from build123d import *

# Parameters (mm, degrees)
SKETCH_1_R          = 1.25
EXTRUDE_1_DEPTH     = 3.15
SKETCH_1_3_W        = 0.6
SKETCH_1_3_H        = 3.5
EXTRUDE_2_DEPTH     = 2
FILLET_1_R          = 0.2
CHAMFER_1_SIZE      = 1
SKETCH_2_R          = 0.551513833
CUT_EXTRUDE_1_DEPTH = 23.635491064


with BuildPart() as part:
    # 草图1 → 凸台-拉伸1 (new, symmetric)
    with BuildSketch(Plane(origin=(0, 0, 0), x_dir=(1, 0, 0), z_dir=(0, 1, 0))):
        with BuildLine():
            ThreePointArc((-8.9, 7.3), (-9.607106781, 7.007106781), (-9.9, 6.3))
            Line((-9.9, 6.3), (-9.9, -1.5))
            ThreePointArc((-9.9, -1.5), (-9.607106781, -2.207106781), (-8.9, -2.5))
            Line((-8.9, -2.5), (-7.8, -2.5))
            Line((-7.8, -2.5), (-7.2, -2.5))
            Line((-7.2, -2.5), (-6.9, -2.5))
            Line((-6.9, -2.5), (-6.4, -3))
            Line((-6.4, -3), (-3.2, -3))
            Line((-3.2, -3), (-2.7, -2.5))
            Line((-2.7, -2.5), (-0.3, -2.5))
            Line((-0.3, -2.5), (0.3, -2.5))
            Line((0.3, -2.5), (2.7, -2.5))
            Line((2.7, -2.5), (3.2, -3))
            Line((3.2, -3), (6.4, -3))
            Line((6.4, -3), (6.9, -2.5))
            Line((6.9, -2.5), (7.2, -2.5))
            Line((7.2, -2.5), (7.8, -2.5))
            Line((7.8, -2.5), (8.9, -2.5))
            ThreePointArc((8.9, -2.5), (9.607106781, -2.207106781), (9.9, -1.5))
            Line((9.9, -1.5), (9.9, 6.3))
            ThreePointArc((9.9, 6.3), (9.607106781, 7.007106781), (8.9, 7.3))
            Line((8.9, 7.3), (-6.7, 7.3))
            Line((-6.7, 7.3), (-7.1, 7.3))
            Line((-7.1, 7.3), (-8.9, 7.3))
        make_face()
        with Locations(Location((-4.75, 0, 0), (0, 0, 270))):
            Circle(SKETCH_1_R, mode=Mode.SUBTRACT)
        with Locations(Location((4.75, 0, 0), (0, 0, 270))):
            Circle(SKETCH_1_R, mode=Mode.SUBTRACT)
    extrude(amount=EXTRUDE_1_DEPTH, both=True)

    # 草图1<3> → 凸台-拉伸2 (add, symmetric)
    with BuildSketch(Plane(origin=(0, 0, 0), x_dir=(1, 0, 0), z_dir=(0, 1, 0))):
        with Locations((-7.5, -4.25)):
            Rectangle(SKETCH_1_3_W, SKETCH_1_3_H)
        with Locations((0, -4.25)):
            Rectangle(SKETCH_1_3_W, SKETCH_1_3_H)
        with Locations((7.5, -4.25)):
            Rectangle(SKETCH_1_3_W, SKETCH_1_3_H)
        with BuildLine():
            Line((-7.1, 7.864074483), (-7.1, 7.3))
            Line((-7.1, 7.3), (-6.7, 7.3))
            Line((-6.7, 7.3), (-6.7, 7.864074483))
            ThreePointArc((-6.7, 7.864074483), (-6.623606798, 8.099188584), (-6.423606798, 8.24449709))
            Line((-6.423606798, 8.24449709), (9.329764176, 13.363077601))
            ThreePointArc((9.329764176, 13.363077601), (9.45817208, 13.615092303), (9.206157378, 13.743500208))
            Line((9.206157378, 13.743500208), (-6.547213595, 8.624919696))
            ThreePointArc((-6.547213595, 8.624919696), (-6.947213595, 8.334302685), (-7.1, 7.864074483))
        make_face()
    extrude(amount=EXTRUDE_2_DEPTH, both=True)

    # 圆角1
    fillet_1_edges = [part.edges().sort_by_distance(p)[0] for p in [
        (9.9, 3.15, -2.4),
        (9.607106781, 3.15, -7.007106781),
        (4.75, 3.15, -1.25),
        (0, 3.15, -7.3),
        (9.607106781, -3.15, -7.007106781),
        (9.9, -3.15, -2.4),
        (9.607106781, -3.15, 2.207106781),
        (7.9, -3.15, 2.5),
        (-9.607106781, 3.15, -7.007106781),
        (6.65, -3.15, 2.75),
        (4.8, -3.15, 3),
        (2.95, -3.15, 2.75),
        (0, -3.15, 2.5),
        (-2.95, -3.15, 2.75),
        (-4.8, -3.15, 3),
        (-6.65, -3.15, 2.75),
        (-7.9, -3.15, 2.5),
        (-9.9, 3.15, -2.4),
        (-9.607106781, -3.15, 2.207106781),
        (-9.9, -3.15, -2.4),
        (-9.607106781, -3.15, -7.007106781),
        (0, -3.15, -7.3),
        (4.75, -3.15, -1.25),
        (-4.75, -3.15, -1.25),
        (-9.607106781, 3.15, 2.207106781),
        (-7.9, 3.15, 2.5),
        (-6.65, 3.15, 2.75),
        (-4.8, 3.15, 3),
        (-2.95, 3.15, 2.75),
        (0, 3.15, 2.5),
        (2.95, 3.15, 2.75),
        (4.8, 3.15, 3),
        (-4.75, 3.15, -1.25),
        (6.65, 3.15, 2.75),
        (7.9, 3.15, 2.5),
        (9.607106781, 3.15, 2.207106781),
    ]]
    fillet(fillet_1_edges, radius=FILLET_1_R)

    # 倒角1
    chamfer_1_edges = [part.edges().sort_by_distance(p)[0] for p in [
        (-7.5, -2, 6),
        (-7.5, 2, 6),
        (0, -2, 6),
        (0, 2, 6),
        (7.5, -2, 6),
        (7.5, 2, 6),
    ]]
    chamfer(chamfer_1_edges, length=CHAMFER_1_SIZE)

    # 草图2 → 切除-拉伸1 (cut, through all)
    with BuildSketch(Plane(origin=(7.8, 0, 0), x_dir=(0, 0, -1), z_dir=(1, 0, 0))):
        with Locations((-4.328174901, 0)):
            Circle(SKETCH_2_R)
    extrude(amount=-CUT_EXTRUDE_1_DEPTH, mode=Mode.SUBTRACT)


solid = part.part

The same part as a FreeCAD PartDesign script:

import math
import FreeCAD as App
import Part
import Sketcher
from FreeCAD import Vector
Q = App.Units.Quantity


def edges_at(feature, points):
    """Names of the edges that pass closest to the given points."""
    edges = feature.Shape.Edges
    near = lambda p: min(range(len(edges)), key=lambda i: edges[i].distToShape(Part.Vertex(*p))[0])
    return sorted({f"Edge{near(p) + 1}" for p in points})


def add_polygon(sketch, points):
    """Adds a closed chain of lines whose ends are joined by coincident constraints."""
    first, n = sketch.GeometryCount, len(points)
    for a, b in zip(points, points[1:] + points[:1]):
        sketch.addGeometry(Part.LineSegment(App.Vector(*a, 0), App.Vector(*b, 0)), False)
    for i in range(n):
        sketch.addConstraint(Sketcher.Constraint("Coincident", first + i, 2, first + (i + 1) % n, 1))

doc = App.newDocument("Part")
body = doc.addObject("PartDesign::Body", "Body")

# Sketch on XZ plane
sketch1 = body.newObject("Sketcher::SketchObject", "Sketch")
sketch1.AttachmentSupport = (doc.getObject("XZ_Plane"), [""])
sketch1.MapMode = "FlatFace"
sketch1.addGeometry(Part.ArcOfCircle(Part.Circle(Vector(-8.9, -6.3, 0), Vector(0, 0, 1), 1), math.radians(-180), math.radians(-90)), False)
sketch1.addGeometry(Part.LineSegment(Vector(-9.9, -6.3, 0), Vector(-9.9, 1.5, 0)), False)
sketch1.addGeometry(Part.ArcOfCircle(Part.Circle(Vector(-8.9, 1.5, 0), Vector(0, 0, 1), 1), math.radians(90), math.radians(180)), False)
sketch1.addGeometry(Part.LineSegment(Vector(-8.9, 2.5, 0), Vector(-6.9, 2.5, 0)), False)
sketch1.addGeometry(Part.LineSegment(Vector(-6.9, 2.5, 0), Vector(-6.4, 3, 0)), False)
sketch1.addGeometry(Part.LineSegment(Vector(-6.4, 3, 0), Vector(-3.2, 3, 0)), False)
sketch1.addGeometry(Part.LineSegment(Vector(-3.2, 3, 0), Vector(-2.7, 2.5, 0)), False)
sketch1.addGeometry(Part.LineSegment(Vector(-2.7, 2.5, 0), Vector(2.7, 2.5, 0)), False)
sketch1.addGeometry(Part.LineSegment(Vector(2.7, 2.5, 0), Vector(3.2, 3, 0)), False)
sketch1.addGeometry(Part.LineSegment(Vector(3.2, 3, 0), Vector(6.4, 3, 0)), False)
sketch1.addGeometry(Part.LineSegment(Vector(6.4, 3, 0), Vector(6.9, 2.5, 0)), False)
sketch1.addGeometry(Part.LineSegment(Vector(6.9, 2.5, 0), Vector(8.9, 2.5, 0)), False)
sketch1.addGeometry(Part.ArcOfCircle(Part.Circle(Vector(8.9, 1.5, 0), Vector(0, 0, 1), 1), math.radians(0), math.radians(90)), False)
sketch1.addGeometry(Part.LineSegment(Vector(9.9, 1.5, 0), Vector(9.9, -6.3, 0)), False)
sketch1.addGeometry(Part.ArcOfCircle(Part.Circle(Vector(8.9, -6.3, 0), Vector(0, 0, 1), 1), math.radians(-90), math.radians(0)), False)
sketch1.addGeometry(Part.LineSegment(Vector(8.9, -7.3, 0), Vector(-8.9, -7.3, 0)), False)
sketch1.addGeometry(Part.Circle(Vector(-4.75, 0, 0), Vector(0, 0, 1), 1.25), False)
sketch1.addGeometry(Part.Circle(Vector(4.75, 0, 0), Vector(0, 0, 1), 1.25), False)
sketch1.addConstraint(Sketcher.Constraint("Tangent", 0, 1, 1, 1))
sketch1.addConstraint(Sketcher.Constraint("Tangent", 1, 2, 2, 2))
sketch1.addConstraint(Sketcher.Constraint("Tangent", 2, 1, 3, 1))
sketch1.addConstraint(Sketcher.Constraint("Coincident", 3, 2, 4, 1))
sketch1.addConstraint(Sketcher.Constraint("Coincident", 4, 2, 5, 1))
sketch1.addConstraint(Sketcher.Constraint("Coincident", 5, 2, 6, 1))
sketch1.addConstraint(Sketcher.Constraint("Coincident", 6, 2, 7, 1))
sketch1.addConstraint(Sketcher.Constraint("Coincident", 7, 2, 8, 1))
sketch1.addConstraint(Sketcher.Constraint("Coincident", 8, 2, 9, 1))
sketch1.addConstraint(Sketcher.Constraint("Coincident", 9, 2, 10, 1))
sketch1.addConstraint(Sketcher.Constraint("Coincident", 10, 2, 11, 1))
sketch1.addConstraint(Sketcher.Constraint("Tangent", 11, 2, 12, 2))
sketch1.addConstraint(Sketcher.Constraint("Tangent", 12, 1, 13, 1))
sketch1.addConstraint(Sketcher.Constraint("Tangent", 13, 2, 14, 2))
sketch1.addConstraint(Sketcher.Constraint("Tangent", 14, 1, 15, 1))
sketch1.addConstraint(Sketcher.Constraint("Tangent", 15, 2, 0, 2))
sketch1.addConstraint(Sketcher.Constraint("Vertical", 1))
sketch1.addConstraint(Sketcher.Constraint("Horizontal", 3))
sketch1.addConstraint(Sketcher.Constraint("Horizontal", 5))
sketch1.addConstraint(Sketcher.Constraint("Horizontal", 7))
sketch1.addConstraint(Sketcher.Constraint("Horizontal", 9))
sketch1.addConstraint(Sketcher.Constraint("Horizontal", 11))
sketch1.addConstraint(Sketcher.Constraint("Vertical", 13))
sketch1.addConstraint(Sketcher.Constraint("Horizontal", 15))
sketch1.addConstraint(Sketcher.Constraint("Equal", 0, 2))
sketch1.addConstraint(Sketcher.Constraint("Equal", 2, 12))
sketch1.addConstraint(Sketcher.Constraint("Equal", 12, 14))
sketch1.addConstraint(Sketcher.Constraint("Equal", 16, 17))
sketch1.addConstraint(Sketcher.Constraint("Symmetric", 16, 3, 17, 3, -1, 1))
sketch1.addConstraint(Sketcher.Constraint("Symmetric", 2, 3, 12, 3, -2))
sketch1.addConstraint(Sketcher.Constraint("Symmetric", 5, 2, 8, 2, -2))
sketch1.addConstraint(Sketcher.Constraint("PointOnObject", 16, 3, -1))
sketch1.addConstraint(Sketcher.Constraint("Perpendicular", 4, 6))
sketch1.addConstraint(Sketcher.Constraint("Perpendicular", 6, 8))
sketch1.addConstraint(Sketcher.Constraint("Perpendicular", 8, 10))
sketch1.addConstraint(Sketcher.Constraint("Horizontal", 3, 2, 6, 2))
sketch1.addConstraint(Sketcher.Constraint("Equal", 5, 9))
sketch1.addConstraint(Sketcher.Constraint("Equal", 3, 11))
sketch1.addConstraint(Sketcher.Constraint("Radius", 0, 1.0))
sketch1.addConstraint(Sketcher.Constraint("Diameter", 16, 2.5))
sketch1.addConstraint(Sketcher.Constraint("DistanceX", 3, 1, 3, 2, 2.0))
sketch1.addConstraint(Sketcher.Constraint("DistanceX", 5, 1, 5, 2, 3.2))
sketch1.addConstraint(Sketcher.Constraint("DistanceX", 7, 1, 7, 2, 5.4))
sketch1.addConstraint(Sketcher.Constraint("DistanceX", 15, 2, 15, 1, 17.8))
sketch1.addConstraint(Sketcher.Constraint("DistanceY", 1, 1, 1, 2, 7.8))
sketch1.addConstraint(Sketcher.Constraint("DistanceY", -1, 1, 4, 2, 3.0))
sketch1.addConstraint(Sketcher.Constraint("DistanceX", 16, 3, 17, 3, 9.5))
pad1 = body.newObject("PartDesign::Pad", "Pad")
pad1.Profile = sketch1
pad1.Length = 6.3
pad1.Midplane = True

# Sketch on XZ plane
sketch2 = body.newObject("Sketcher::SketchObject", "Sketch001")
sketch2.AttachmentSupport = (doc.getObject("XZ_Plane"), [""])
sketch2.MapMode = "FlatFace"
add_polygon(sketch2, [(-7.8, 2.5), (-7.8, 6), (-7.2, 6), (-7.2, 2.5)])  # lines 0-3
add_polygon(sketch2, [(-0.3, 2.5), (-0.3, 6), (0.3, 6), (0.3, 2.5)])  # lines 4-7
add_polygon(sketch2, [(7.2, 2.5), (7.2, 6), (7.8, 6), (7.8, 2.5)])  # lines 8-11
sketch2.addGeometry(Part.LineSegment(Vector(-7.1, -7.864074, 0), Vector(-7.1, -7.3, 0)), False)  # 12
sketch2.addGeometry(Part.LineSegment(Vector(-7.1, -7.3, 0), Vector(-6.7, -7.3, 0)), False)  # 13
sketch2.addGeometry(Part.LineSegment(Vector(-6.7, -7.3, 0), Vector(-6.7, -7.864074, 0)), False)  # 14
sketch2.addGeometry(Part.ArcOfCircle(Part.Circle(Vector(-6.3, -7.864074, 0), Vector(0, 0, 1), 0.4), math.radians(180), math.radians(252)), False)  # 15
sketch2.addGeometry(Part.LineSegment(Vector(-6.423607, -8.244497, 0), Vector(9.329764, -13.363078, 0)), False)  # 16
sketch2.addGeometry(Part.ArcOfCircle(Part.Circle(Vector(9.267961, -13.553289, 0), Vector(0, 0, 1), 0.2), math.radians(-108), math.radians(72)), False)  # 17
sketch2.addGeometry(Part.LineSegment(Vector(9.206157, -13.7435, 0), Vector(-6.547214, -8.62492, 0)), False)  # 18
sketch2.addGeometry(Part.ArcOfCircle(Part.Circle(Vector(-6.3, -7.864074, 0), Vector(0, 0, 1), 0.8), math.radians(-180), math.radians(-108)), False)  # 19
sketch2.addConstraint(Sketcher.Constraint("Coincident", 12, 2, 13, 1))
sketch2.addConstraint(Sketcher.Constraint("Coincident", 13, 2, 14, 1))
sketch2.addConstraint(Sketcher.Constraint("Tangent", 14, 2, 15, 1))
sketch2.addConstraint(Sketcher.Constraint("Tangent", 15, 2, 16, 1))
sketch2.addConstraint(Sketcher.Constraint("Tangent", 16, 2, 17, 2))
sketch2.addConstraint(Sketcher.Constraint("Tangent", 17, 1, 18, 1))
sketch2.addConstraint(Sketcher.Constraint("Tangent", 18, 2, 19, 2))
sketch2.addConstraint(Sketcher.Constraint("Tangent", 19, 1, 12, 1))
sketch2.addConstraint(Sketcher.Constraint("Vertical", 0))
sketch2.addConstraint(Sketcher.Constraint("Horizontal", 1))
sketch2.addConstraint(Sketcher.Constraint("Vertical", 2))
sketch2.addConstraint(Sketcher.Constraint("Horizontal", 3))
sketch2.addConstraint(Sketcher.Constraint("Vertical", 4))
sketch2.addConstraint(Sketcher.Constraint("Horizontal", 5))
sketch2.addConstraint(Sketcher.Constraint("Vertical", 6))
sketch2.addConstraint(Sketcher.Constraint("Horizontal", 7))
sketch2.addConstraint(Sketcher.Constraint("Vertical", 8))
sketch2.addConstraint(Sketcher.Constraint("Horizontal", 9))
sketch2.addConstraint(Sketcher.Constraint("Vertical", 10))
sketch2.addConstraint(Sketcher.Constraint("Horizontal", 11))
sketch2.addConstraint(Sketcher.Constraint("Vertical", 12))
sketch2.addConstraint(Sketcher.Constraint("Horizontal", 13))
sketch2.addConstraint(Sketcher.Constraint("Vertical", 14))
sketch2.addConstraint(Sketcher.Constraint("Coincident", 19, 3, 15, 3))
sketch2.addConstraint(Sketcher.Constraint("Symmetric", 1, 2, 8, 2, -2))
sketch2.addConstraint(Sketcher.Constraint("Symmetric", 3, 2, 10, 2, -2))
sketch2.addConstraint(Sketcher.Constraint("Parallel", 16, 18))
sketch2.addConstraint(Sketcher.Constraint("Horizontal", 1, 2, 4, 2))
sketch2.addConstraint(Sketcher.Constraint("Horizontal", 3, 2, 6, 2))
sketch2.addConstraint(Sketcher.Constraint("Equal", 3, 5))
sketch2.addConstraint(Sketcher.Constraint("Radius", 15, 0.4))
sketch2.addConstraint(Sketcher.Constraint("Radius", 17, 0.2))
sketch2.addConstraint(Sketcher.Constraint("Angle", 16, Q("-18 deg")))
sketch2.addConstraint(Sketcher.Constraint("DistanceX", 1, 1, 1, 2, 0.6))
sketch2.addConstraint(Sketcher.Constraint("DistanceY", 0, 1, 0, 2, 3.5))
sketch2.addConstraint(Sketcher.Constraint("DistanceY", -1, 1, 0, 2, 6.0))
sketch2.addConstraint(Sketcher.Constraint("DistanceX", 19, 3, 4, 2, 6.0))
sketch2.addConstraint(Sketcher.Constraint("DistanceX", 15, 3, -1, 1, 6.3))
sketch2.addConstraint(Sketcher.Constraint("DistanceX", 0, 2, -1, 1, 7.8))
sketch2.addConstraint(Sketcher.Constraint("DistanceY", 12, 2, -1, 1, 7.3))
sketch2.addConstraint(Sketcher.Constraint("DistanceY", 17, 1, -1, 1, 13.7435))
sketch2.addConstraint(Sketcher.Constraint("DistanceY", 12, 1, 12, 2, 0.564074))
pad2 = body.newObject("PartDesign::Pad", "Pad001")
pad2.Profile = sketch2
pad2.Length = 4
pad2.Midplane = True
doc.recompute()

fillet = body.newObject("PartDesign::Fillet", "Fillet")
fillet.Base = (pad2, edges_at(pad2, [
    (9.9, 3.15, -2.4),
    (9.607, 3.15, -7.007),
    (4.75, 3.15, -1.25),
    (0, 3.15, -7.3),
    (9.607, -3.15, -7.007),
    (9.9, -3.15, -2.4),
    (9.607, -3.15, 2.207),
    (7.9, -3.15, 2.5),
    (-9.607, 3.15, -7.007),
    (6.65, -3.15, 2.75),
    (4.8, -3.15, 3),
    (2.95, -3.15, 2.75),
    (0, -3.15, 2.5),
    (-2.95, -3.15, 2.75),
    (-4.8, -3.15, 3),
    (-6.65, -3.15, 2.75),
    (-7.9, -3.15, 2.5),
    (-9.9, 3.15, -2.4),
    (-9.607, -3.15, 2.207),
    (-9.9, -3.15, -2.4),
    (-9.607, -3.15, -7.007),
    (0, -3.15, -7.3),
    (4.75, -3.15, -1.25),
    (-4.75, -3.15, -1.25),
    (-9.607, 3.15, 2.207),
    (-7.9, 3.15, 2.5),
    (-6.65, 3.15, 2.75),
    (-4.8, 3.15, 3),
    (-2.95, 3.15, 2.75),
    (0, 3.15, 2.5),
    (2.95, 3.15, 2.75),
    (4.8, 3.15, 3),
    (-4.75, 3.15, -1.25),
    (6.65, 3.15, 2.75),
    (7.9, 3.15, 2.5),
    (9.607, 3.15, 2.207),
]))
fillet.Radius = 0.2
doc.recompute()

chamfer = body.newObject("PartDesign::Chamfer", "Chamfer")
chamfer.Base = (fillet, edges_at(fillet, [
    (-7.5, -2, 6),
    (-7.5, 2, 6),
    (0, -2, 6),
    (0, 2, 6),
    (7.5, -2, 6),
    (7.5, 2, 6),
]))
chamfer.Size = 1

# Sketch on YZ plane
sketch3 = body.newObject("Sketcher::SketchObject", "Sketch002")
sketch3.AttachmentSupport = (doc.getObject("YZ_Plane"), [""])
sketch3.MapMode = "FlatFace"
sketch3.AttachmentOffset = App.Placement(Vector(0, 0, 7.8), App.Rotation())
sketch3.addGeometry(Part.Circle(Vector(0, 4.328175, 0), Vector(0, 0, 1), 0.551514), False)
sketch3.addConstraint(Sketcher.Constraint("PointOnObject", 0, 3, -2))
sketch3.addConstraint(Sketcher.Constraint("Diameter", 0, 1.103028))
sketch3.addConstraint(Sketcher.Constraint("DistanceY", -1, 1, 0, 3, 4.328175))
pocket1 = body.newObject("PartDesign::Pocket", "Pocket")
pocket1.Profile = sketch3
pocket1.Type = "ThroughAll"

doc.recompute()
